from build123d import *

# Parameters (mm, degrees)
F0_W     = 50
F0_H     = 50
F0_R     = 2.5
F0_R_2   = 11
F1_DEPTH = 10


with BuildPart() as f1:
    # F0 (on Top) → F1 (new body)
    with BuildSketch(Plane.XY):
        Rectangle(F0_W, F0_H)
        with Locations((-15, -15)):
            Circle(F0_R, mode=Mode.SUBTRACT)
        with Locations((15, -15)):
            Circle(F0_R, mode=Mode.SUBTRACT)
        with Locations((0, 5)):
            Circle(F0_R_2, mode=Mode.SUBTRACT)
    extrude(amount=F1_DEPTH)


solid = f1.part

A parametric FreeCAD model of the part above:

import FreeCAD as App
import Part
import Sketcher

V = App.Vector

doc = App.newDocument("Part")
body = doc.addObject("PartDesign::Body", "Body")

sketch1 = body.newObject("Sketcher::SketchObject", "Sketch")
sketch1.AttachmentSupport = (doc.getObject("XY_Plane"), [""])
sketch1.MapMode = "FlatFace"
sketch1.addGeometry([
    Part.LineSegment(V(-25, 25, 0), V(-25, -25, 0)),
    Part.LineSegment(V(-25, -25, 0), V(25, -25, 0)),
    Part.LineSegment(V(25, -25, 0), V(25, 25, 0)),
    Part.LineSegment(V(25, 25, 0), V(-25, 25, 0)),
    Part.Circle(V(-15, -15, 0), V(0, 0, 1), 2.5),
    Part.Circle(V(15, -15, 0), V(0, 0, 1), 2.5),
    Part.Circle(V(0, 5, 0), V(0, 0, 1), 11),
], False)
sketch1.addConstraint([
    Sketcher.Constraint("Coincident", 0, 2, 1, 1),
    Sketcher.Constraint("Coincident", 1, 2, 2, 1),
    Sketcher.Constraint("Coincident", 2, 2, 3, 1),
    Sketcher.Constraint("Coincident", 3, 2, 0, 1),
    Sketcher.Constraint("Vertical", 0),
    Sketcher.Constraint("Horizontal", 1),
    Sketcher.Constraint("Vertical", 2),
    Sketcher.Constraint("Horizontal", 3),
    Sketcher.Constraint("Equal", 4, 5),
    Sketcher.Constraint("Symmetric", 0, 2, 2, 2, -1, 1),
    Sketcher.Constraint("Symmetric", 4, 3, 5, 3, -2),
    Sketcher.Constraint("PointOnObject", 6, 3, -2),
    Sketcher.Constraint("Equal", 3, 0),
    Sketcher.Constraint("Diameter", 4, 5.0),
    Sketcher.Constraint("Diameter", 6, 22.0),
    Sketcher.Constraint("DistanceX", 1, 1, 1, 2, 50.0),
    Sketcher.Constraint("DistanceX", 4, 3, -1, 1, 15.0),
    Sketcher.Constraint("DistanceY", 4, 3, -1, 1, 15.0),
    Sketcher.Constraint("DistanceY", -1, 1, 6, 3, 5.0),
])
pad1 = body.newObject("PartDesign::Pad", "Pad")
pad1.Profile = sketch1
pad1.Length = 10

doc.recompute()
